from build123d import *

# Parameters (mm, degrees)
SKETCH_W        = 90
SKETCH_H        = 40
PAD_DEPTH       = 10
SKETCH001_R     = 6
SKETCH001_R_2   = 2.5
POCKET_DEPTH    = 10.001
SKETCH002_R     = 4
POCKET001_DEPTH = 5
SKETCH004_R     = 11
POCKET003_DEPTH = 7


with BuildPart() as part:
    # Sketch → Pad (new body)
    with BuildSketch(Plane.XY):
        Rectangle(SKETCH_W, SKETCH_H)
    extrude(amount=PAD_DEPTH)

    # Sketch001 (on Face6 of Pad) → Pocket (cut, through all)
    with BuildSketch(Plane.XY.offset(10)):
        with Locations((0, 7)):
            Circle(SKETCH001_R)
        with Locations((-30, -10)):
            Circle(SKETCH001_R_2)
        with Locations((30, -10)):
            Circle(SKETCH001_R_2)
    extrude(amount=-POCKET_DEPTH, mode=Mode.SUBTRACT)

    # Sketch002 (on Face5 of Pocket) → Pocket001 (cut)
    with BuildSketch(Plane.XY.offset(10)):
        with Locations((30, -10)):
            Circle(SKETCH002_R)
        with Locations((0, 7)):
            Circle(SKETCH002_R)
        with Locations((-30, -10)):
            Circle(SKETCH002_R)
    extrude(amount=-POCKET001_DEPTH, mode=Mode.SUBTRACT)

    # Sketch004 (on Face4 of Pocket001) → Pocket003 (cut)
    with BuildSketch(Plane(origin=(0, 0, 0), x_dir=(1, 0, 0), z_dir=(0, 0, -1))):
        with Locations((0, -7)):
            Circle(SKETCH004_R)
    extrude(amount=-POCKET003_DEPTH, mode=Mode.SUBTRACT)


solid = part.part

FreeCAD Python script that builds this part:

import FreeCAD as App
import Part
import Sketcher

V = App.Vector
Q = App.Units.Quantity

doc = App.newDocument("Part")
body = doc.addObject("PartDesign::Body", "Body")

# Sketch on XY plane
sketch1 = doc.addObject("Sketcher::SketchObject", "Sketch")
body.addObject(sketch1)
sketch1.AttachmentSupport = (doc.XY_Plane, [""])
sketch1.MapMode = "FlatFace"
sketch1.addGeometry(Part.LineSegment(V(-45, 20, 0), V(-45, -20, 0)), False)
sketch1.addGeometry(Part.LineSegment(V(-45, -20, 0), V(45, -20, 0)), False)
sketch1.addGeometry(Part.LineSegment(V(45, -20, 0), V(45, 20, 0)), False)
sketch1.addGeometry(Part.LineSegment(V(45, 20, 0), V(-45, 20, 0)), False)
sketch1.addConstraint(Sketcher.Constraint("Coincident", 0, 2, 1, 1))
sketch1.addConstraint(Sketcher.Constraint("Coincident", 1, 2, 2, 1))
sketch1.addConstraint(Sketcher.Constraint("Coincident", 2, 2, 3, 1))
sketch1.addConstraint(Sketcher.Constraint("Coincident", 3, 2, 0, 1))
sketch1.addConstraint(Sketcher.Constraint("Vertical", 0))
sketch1.addConstraint(Sketcher.Constraint("Horizontal", 1))
sketch1.addConstraint(Sketcher.Constraint("Vertical", 2))
sketch1.addConstraint(Sketcher.Constraint("Horizontal", 3))
sketch1.addConstraint(Sketcher.Constraint("Symmetric", 0, 2, 2, 2, -1, 1))
sketch1.addConstraint(Sketcher.Constraint("DistanceX", 1, 1, 1, 2, Q("90 mm")))
sketch1.addConstraint(Sketcher.Constraint("DistanceY", 0, 2, 0, 1, Q("40 mm")))
pad1 = doc.addObject("PartDesign::Pad", "Pad")
body.addObject(pad1)
pad1.Profile = sketch1
pad1.Length = 10

# Sketch on XY plane
sketch2 = doc.addObject("Sketcher::SketchObject", "Sketch001")
body.addObject(sketch2)
sketch2.AttachmentSupport = (doc.XY_Plane, [""])
sketch2.MapMode = "FlatFace"
sketch2.AttachmentOffset = App.Placement(V(0, 0, 10), App.Rotation())
sketch2.addGeometry(Part.Circle(V(0, 7, 0), V(0, 0, 1), 6), False)
sketch2.addGeometry(Part.Circle(V(-30, -10, 0), V(0, 0, 1), 2.5), False)
sketch2.addGeometry(Part.Circle(V(30, -10, 0), V(0, 0, 1), 2.5), False)
sketch2.addConstraint(Sketcher.Constraint("Equal", 1, 2))
sketch2.addConstraint(Sketcher.Constraint("Symmetric", 1, 3, 2, 3, -2))
sketch2.addConstraint(Sketcher.Constraint("PointOnObject", 0, 3, -2))
sketch2.addConstraint(Sketcher.Constraint("Diameter", 0, Q("12 mm")))
sketch2.addConstraint(Sketcher.Constraint("Diameter", 1, Q("5 mm")))
sketch2.addConstraint(Sketcher.Constraint("DistanceY", -1, 1, 0, 3, Q("7 mm")))
sketch2.addConstraint(Sketcher.Constraint("DistanceX", 1, 3, -1, 1, Q("30 mm")))
sketch2.addConstraint(Sketcher.Constraint("DistanceY", 1, 3, -1, 1, Q("10 mm")))
pocket1 = doc.addObject("PartDesign::Pocket", "Pocket")
body.addObject(pocket1)
pocket1.Profile = sketch2
pocket1.Type = "ThroughAll"

# Sketch on XY plane
sketch3 = doc.addObject("Sketcher::SketchObject", "Sketch002")
body.addObject(sketch3)
sketch3.AttachmentSupport = (doc.XY_Plane, [""])
sketch3.MapMode = "FlatFace"
sketch3.AttachmentOffset = App.Placement(V(0, 0, 10), App.Rotation())
sketch3.addGeometry(Part.Circle(V(30, -10, 0), V(0, 0, 1), 4), False)
sketch3.addGeometry(Part.Circle(V(0, 7, 0), V(0, 0, 1), 4), False)
sketch3.addGeometry(Part.Circle(V(-30, -10, 0), V(0, 0, 1), 4), False)
sketch3.addConstraint(Sketcher.Constraint("Equal", 0, 1))
sketch3.addConstraint(Sketcher.Constraint("Equal", 1, 2))
sketch3.addConstraint(Sketcher.Constraint("Symmetric", 0, 3, 2, 3, -2))
sketch3.addConstraint(Sketcher.Constraint("PointOnObject", 1, 3, -2))
sketch3.addConstraint(Sketcher.Constraint("Diameter", 0, Q("8 mm")))
sketch3.addConstraint(Sketcher.Constraint("DistanceX", -1, 1, 0, 3, Q("30 mm")))
sketch3.addConstraint(Sketcher.Constraint("DistanceY", 0, 3, -1, 1, Q("10 mm")))
sketch3.addConstraint(Sketcher.Constraint("DistanceY", -1, 1, 1, 3, Q("7 mm")))
pocket2 = doc.addObject("PartDesign::Pocket", "Pocket001")
body.addObject(pocket2)
pocket2.Profile = sketch3
pocket2.Length = 5

# Sketch on XY plane
sketch4 = doc.addObject("Sketcher::SketchObject", "Sketch003")
body.addObject(sketch4)
sketch4.AttachmentSupport = (doc.XY_Plane, [""])
sketch4.MapMode = "FlatFace"
sketch4.addGeometry(Part.Circle(V(0, 7, 0), V(0, 0, 1), 11), False)
sketch4.addConstraint(Sketcher.Constraint("PointOnObject", 0, 3, -2))
sketch4.addConstraint(Sketcher.Constraint("Diameter", 0, Q("22 mm")))
sketch4.addConstraint(Sketcher.Constraint("DistanceY", -1, 1, 0, 3, Q("7 mm")))
pocket3 = doc.addObject("PartDesign::Pocket", "Pocket002")
body.addObject(pocket3)
pocket3.Profile = sketch4
pocket3.Length = 7
pocket3.Reversed = True

doc.recompute()
